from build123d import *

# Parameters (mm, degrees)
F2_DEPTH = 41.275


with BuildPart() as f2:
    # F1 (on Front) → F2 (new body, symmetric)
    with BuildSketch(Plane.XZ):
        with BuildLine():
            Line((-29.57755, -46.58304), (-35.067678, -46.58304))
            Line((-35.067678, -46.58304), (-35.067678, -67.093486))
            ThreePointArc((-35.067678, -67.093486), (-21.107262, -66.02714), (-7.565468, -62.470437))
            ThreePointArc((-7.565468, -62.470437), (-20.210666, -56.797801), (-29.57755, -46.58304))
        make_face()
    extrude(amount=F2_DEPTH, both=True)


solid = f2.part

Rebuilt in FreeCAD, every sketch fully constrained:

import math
import FreeCAD as App
import Part
import Sketcher
from FreeCAD import Vector
Q = App.Units.Quantity

doc = App.newDocument("Part")
body = doc.addObject("PartDesign::Body", "Body")

# Sketch on XZ plane
sketch1 = doc.addObject("Sketcher::SketchObject", "Sketch")
body.addObject(sketch1)
sketch1.AttachmentSupport = (doc.XZ_Plane, [""])
sketch1.MapMode = "FlatFace"
sketch1.addGeometry(Part.LineSegment(Vector(-30, -47, 0), Vector(-35, -47, 0)), False)
sketch1.addGeometry(Part.LineSegment(Vector(-35, -47, 0), Vector(-35, -67, 0)), False)
sketch1.addGeometry(Part.ArcOfCircle(Part.Circle(Vector(-34, 11, 0), Vector(0, 0, 1), 78), math.radians(-91), math.radians(-70)), False)
sketch1.addGeometry(Part.ArcOfCircle(Part.Circle(Vector(0, -29, 0), Vector(0, 0, 1), 34), math.radians(-149), math.radians(-103)), False)
sketch1.addConstraint(Sketcher.Constraint("Coincident", 0, 2, 1, 1))
sketch1.addConstraint(Sketcher.Constraint("Coincident", 1, 2, 2, 1))
sketch1.addConstraint(Sketcher.Constraint("Coincident", 2, 2, 3, 2))
sketch1.addConstraint(Sketcher.Constraint("Coincident", 3, 1, 0, 1))
sketch1.addConstraint(Sketcher.Constraint("Horizontal", 0))
sketch1.addConstraint(Sketcher.Constraint("Vertical", 1))
sketch1.addConstraint(Sketcher.Constraint("Radius", 3, Q("1.35 in")))
sketch1.addConstraint(Sketcher.Constraint("DistanceY", 1, 2, 3, 3, Q("1.5 in")))
sketch1.addConstraint(Sketcher.Constraint("DistanceX", 0, 2, 3, 3, Q("1.375 in")))
sketch1.addConstraint(Sketcher.Constraint("Radius", 2, 77.626653))
sketch1.addConstraint(Sketcher.Constraint("DistanceX", 0, 2, 0, 1, 5.490128))
sketch1.addConstraint(Sketcher.Constraint("DistanceX", 3, 3, -1, 1, 0.142678))
sketch1.addConstraint(Sketcher.Constraint("DistanceY", 0, 2, -1, 1, 46.58304))
sketch1.addConstraint(Sketcher.Constraint("DistanceX", 2, 3, 3, 3, 33.832878))
pad1 = doc.addObject("PartDesign::Pad", "Pad")
body.addObject(pad1)
pad1.Profile = sketch1
pad1.Length = Q("3.25 in")
pad1.Midplane = True

doc.recompute()
